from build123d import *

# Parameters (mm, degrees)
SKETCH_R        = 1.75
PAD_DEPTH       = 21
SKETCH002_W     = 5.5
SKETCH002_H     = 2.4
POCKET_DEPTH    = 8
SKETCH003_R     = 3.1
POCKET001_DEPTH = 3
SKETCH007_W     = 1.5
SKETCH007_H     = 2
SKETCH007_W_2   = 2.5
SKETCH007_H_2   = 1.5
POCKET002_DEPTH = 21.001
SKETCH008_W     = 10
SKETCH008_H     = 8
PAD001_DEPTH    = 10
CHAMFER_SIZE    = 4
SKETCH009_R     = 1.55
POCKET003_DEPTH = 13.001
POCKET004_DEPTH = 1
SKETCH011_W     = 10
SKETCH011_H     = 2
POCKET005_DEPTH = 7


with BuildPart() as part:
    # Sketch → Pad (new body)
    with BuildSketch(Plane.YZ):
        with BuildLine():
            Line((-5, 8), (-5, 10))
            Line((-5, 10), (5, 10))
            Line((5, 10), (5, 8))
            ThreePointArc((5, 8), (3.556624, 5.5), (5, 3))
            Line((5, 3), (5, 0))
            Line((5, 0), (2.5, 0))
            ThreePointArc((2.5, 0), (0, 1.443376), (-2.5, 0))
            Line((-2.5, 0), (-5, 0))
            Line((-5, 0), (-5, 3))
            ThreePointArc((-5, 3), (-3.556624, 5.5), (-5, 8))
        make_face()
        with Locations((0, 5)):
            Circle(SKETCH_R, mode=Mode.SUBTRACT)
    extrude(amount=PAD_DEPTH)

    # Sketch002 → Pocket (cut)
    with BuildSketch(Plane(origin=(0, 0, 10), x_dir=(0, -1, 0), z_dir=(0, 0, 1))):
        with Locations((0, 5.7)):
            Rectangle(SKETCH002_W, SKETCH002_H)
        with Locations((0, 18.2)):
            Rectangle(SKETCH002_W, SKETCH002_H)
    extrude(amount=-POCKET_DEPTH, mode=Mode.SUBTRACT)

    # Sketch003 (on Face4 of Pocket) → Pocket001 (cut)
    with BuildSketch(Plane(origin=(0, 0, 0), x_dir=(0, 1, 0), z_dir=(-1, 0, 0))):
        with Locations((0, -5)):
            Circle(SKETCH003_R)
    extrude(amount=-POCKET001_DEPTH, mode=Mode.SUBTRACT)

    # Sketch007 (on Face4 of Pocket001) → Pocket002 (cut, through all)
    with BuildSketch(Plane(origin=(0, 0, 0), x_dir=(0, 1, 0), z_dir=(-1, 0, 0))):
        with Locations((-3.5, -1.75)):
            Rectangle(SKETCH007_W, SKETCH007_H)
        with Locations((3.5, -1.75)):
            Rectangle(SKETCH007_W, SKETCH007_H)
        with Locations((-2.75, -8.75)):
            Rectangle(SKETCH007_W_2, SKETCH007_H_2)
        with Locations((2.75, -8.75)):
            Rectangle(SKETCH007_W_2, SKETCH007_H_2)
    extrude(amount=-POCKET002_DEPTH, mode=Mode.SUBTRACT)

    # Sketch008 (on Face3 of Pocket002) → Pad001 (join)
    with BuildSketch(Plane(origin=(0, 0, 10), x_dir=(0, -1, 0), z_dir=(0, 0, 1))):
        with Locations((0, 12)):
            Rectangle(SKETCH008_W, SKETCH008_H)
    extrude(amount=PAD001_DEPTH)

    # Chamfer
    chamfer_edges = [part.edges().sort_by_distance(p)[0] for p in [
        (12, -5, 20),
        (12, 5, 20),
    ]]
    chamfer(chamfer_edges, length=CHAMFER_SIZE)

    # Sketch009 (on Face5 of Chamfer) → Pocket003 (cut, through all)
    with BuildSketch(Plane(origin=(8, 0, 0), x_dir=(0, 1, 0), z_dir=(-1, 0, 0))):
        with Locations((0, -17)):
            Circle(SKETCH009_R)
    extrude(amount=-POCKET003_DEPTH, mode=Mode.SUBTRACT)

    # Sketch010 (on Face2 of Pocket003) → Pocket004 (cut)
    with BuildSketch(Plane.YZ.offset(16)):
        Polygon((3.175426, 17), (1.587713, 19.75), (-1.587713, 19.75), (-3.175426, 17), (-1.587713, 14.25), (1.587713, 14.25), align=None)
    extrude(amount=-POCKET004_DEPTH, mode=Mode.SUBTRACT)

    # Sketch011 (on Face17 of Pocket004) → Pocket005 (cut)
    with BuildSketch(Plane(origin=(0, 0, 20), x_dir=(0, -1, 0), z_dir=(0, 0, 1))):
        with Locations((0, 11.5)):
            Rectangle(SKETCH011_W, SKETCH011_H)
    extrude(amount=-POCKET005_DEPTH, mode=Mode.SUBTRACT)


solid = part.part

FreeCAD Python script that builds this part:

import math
import FreeCAD as App
import Part
import Sketcher
from FreeCAD import Vector
Q = App.Units.Quantity


def edges_at(feature, points):
    """Names of the edges that pass closest to the given points."""
    edges = feature.Shape.Edges
    near = lambda p: min(range(len(edges)), key=lambda i: edges[i].distToShape(Part.Vertex(*p))[0])
    return sorted({f"Edge{near(p) + 1}" for p in points})

doc = App.newDocument("Part")
body = doc.addObject("PartDesign::Body", "Body")

# Sketch on YZ plane
sketch1 = body.newObject("Sketcher::SketchObject", "Sketch")
sketch1.AttachmentSupport = (doc.getObject("YZ_Plane"), [""])
sketch1.MapMode = "FlatFace"
sketch1.addGeometry(Part.LineSegment(Vector(-5, 10, 0), Vector(-5, 8, 0)), False)
sketch1.addGeometry(Part.ArcOfCircle(Part.Circle(Vector(-6.4, 5.5, 0), Vector(0, 0, 1), 2.9), math.radians(-60), math.radians(60)), False)
sketch1.addGeometry(Part.LineSegment(Vector(-5, 3, 0), Vector(-5, 0, 0)), False)
sketch1.addGeometry(Part.LineSegment(Vector(-5, 0, 0), Vector(-2.5, 0, 0)), False)
sketch1.addGeometry(Part.ArcOfCircle(Part.Circle(Vector(0, -1.4, 0), Vector(0, 0, 1), 2.9), math.radians(30), math.radians(150)), False)
sketch1.addGeometry(Part.LineSegment(Vector(2.5, 0, 0), Vector(5, 0, 0)), False)
sketch1.addGeometry(Part.LineSegment(Vector(5, 0, 0), Vector(5, 3, 0)), False)
sketch1.addGeometry(Part.ArcOfCircle(Part.Circle(Vector(6.4, 5.5, 0), Vector(0, 0, 1), 2.9), math.radians(120), math.radians(240)), False)
sketch1.addGeometry(Part.LineSegment(Vector(5, 8, 0), Vector(5, 10, 0)), False)
sketch1.addGeometry(Part.LineSegment(Vector(5, 10, 0), Vector(-5, 10, 0)), False)
sketch1.addGeometry(Part.Circle(Vector(0, 5, 0), Vector(0, 0, 1), 1.8), False)
sketch1.addConstraint(Sketcher.Constraint("Coincident", 0, 2, 1, 2))
sketch1.addConstraint(Sketcher.Constraint("Coincident", 1, 1, 2, 1))
sketch1.addConstraint(Sketcher.Constraint("Coincident", 2, 2, 3, 1))
sketch1.addConstraint(Sketcher.Constraint("Coincident", 3, 2, 4, 2))
sketch1.addConstraint(Sketcher.Constraint("Coincident", 4, 1, 5, 1))
sketch1.addConstraint(Sketcher.Constraint("Coincident", 5, 2, 6, 1))
sketch1.addConstraint(Sketcher.Constraint("Coincident", 6, 2, 7, 2))
sketch1.addConstraint(Sketcher.Constraint("Coincident", 7, 1, 8, 1))
sketch1.addConstraint(Sketcher.Constraint("Coincident", 8, 2, 9, 1))
sketch1.addConstraint(Sketcher.Constraint("Coincident", 9, 2, 0, 1))
sketch1.addConstraint(Sketcher.Constraint("Vertical", 0))
sketch1.addConstraint(Sketcher.Constraint("Vertical", 2))
sketch1.addConstraint(Sketcher.Constraint("Horizontal", 3))
sketch1.addConstraint(Sketcher.Constraint("Horizontal", 5))
sketch1.addConstraint(Sketcher.Constraint("Vertical", 6))
sketch1.addConstraint(Sketcher.Constraint("Vertical", 8))
sketch1.addConstraint(Sketcher.Constraint("Horizontal", 9))
sketch1.addConstraint(Sketcher.Constraint("Equal", 1, 4))
sketch1.addConstraint(Sketcher.Constraint("Equal", 4, 7))
sketch1.addConstraint(Sketcher.Constraint("Symmetric", 3, 2, 4, 1, -1, 1))
sketch1.addConstraint(Sketcher.Constraint("Symmetric", 1, 3, 7, 3, -2))
sketch1.addConstraint(Sketcher.Constraint("Symmetric", 2, 2, 5, 2, -2))
sketch1.addConstraint(Sketcher.Constraint("PointOnObject", 10, 3, -2))
sketch1.addConstraint(Sketcher.Constraint("Horizontal", 0, 2, 7, 1))
sketch1.addConstraint(Sketcher.Constraint("Vertical", 0, 2, 1, 1))
sketch1.addConstraint(Sketcher.Constraint("Diameter", 10, Q("3.5 mm")))
sketch1.addConstraint(Sketcher.Constraint("DistanceX", 9, 2, 9, 1, Q("10 mm")))
sketch1.addConstraint(Sketcher.Constraint("DistanceY", 0, 2, 0, 1, Q("2 mm")))
sketch1.addConstraint(Sketcher.Constraint("DistanceY", 2, 2, 2, 1, Q("3 mm")))
sketch1.addConstraint(Sketcher.Constraint("DistanceX", 3, 1, 3, 2, Q("2.5 mm")))
sketch1.addConstraint(Sketcher.Constraint("DistanceY", -1, 1, 10, 3, Q("5 mm")))
sketch1.addConstraint(Sketcher.Constraint("DistanceY", -1, 1, 0, 2, Q("8 mm")))
sketch1.addConstraint(Sketcher.Constraint("Radius", 1, Q("2.886751 mm")))
pad1 = body.newObject("PartDesign::Pad", "Pad")
pad1.Profile = sketch1
pad1.Length = 21

# Sketch on XY plane
sketch2 = body.newObject("Sketcher::SketchObject", "Sketch001")
sketch2.AttachmentSupport = (doc.getObject("XY_Plane"), [""])
sketch2.MapMode = "FlatFace"
sketch2.AttachmentOffset = App.Placement(Vector(0, 0, 10), App.Rotation())
sketch2.addGeometry(Part.LineSegment(Vector(6.9, 2.8, 0), Vector(4.5, 2.8, 0)), False)
sketch2.addGeometry(Part.LineSegment(Vector(4.5, 2.8, 0), Vector(4.5, -2.8, 0)), False)
sketch2.addGeometry(Part.LineSegment(Vector(4.5, -2.8, 0), Vector(6.9, -2.8, 0)), False)
sketch2.addGeometry(Part.LineSegment(Vector(6.9, -2.8, 0), Vector(6.9, 2.8, 0)), False)
sketch2.addGeometry(Part.LineSegment(Vector(19.4, 2.8, 0), Vector(17, 2.8, 0)), False)
sketch2.addGeometry(Part.LineSegment(Vector(17, 2.8, 0), Vector(17, -2.8, 0)), False)
sketch2.addGeometry(Part.LineSegment(Vector(17, -2.8, 0), Vector(19.4, -2.8, 0)), False)
sketch2.addGeometry(Part.LineSegment(Vector(19.4, -2.8, 0), Vector(19.4, 2.8, 0)), False)
sketch2.addConstraint(Sketcher.Constraint("Coincident", 0, 2, 1, 1))
sketch2.addConstraint(Sketcher.Constraint("Coincident", 1, 2, 2, 1))
sketch2.addConstraint(Sketcher.Constraint("Coincident", 2, 2, 3, 1))
sketch2.addConstraint(Sketcher.Constraint("Coincident", 3, 2, 0, 1))
sketch2.addConstraint(Sketcher.Constraint("Coincident", 4, 2, 5, 1))
sketch2.addConstraint(Sketcher.Constraint("Coincident", 5, 2, 6, 1))
sketch2.addConstraint(Sketcher.Constraint("Coincident", 6, 2, 7, 1))
sketch2.addConstraint(Sketcher.Constraint("Coincident", 7, 2, 4, 1))
sketch2.addConstraint(Sketcher.Constraint("Horizontal", 0))
sketch2.addConstraint(Sketcher.Constraint("Vertical", 1))
sketch2.addConstraint(Sketcher.Constraint("Horizontal", 2))
sketch2.addConstraint(Sketcher.Constraint("Vertical", 3))
sketch2.addConstraint(Sketcher.Constraint("Horizontal", 4))
sketch2.addConstraint(Sketcher.Constraint("Vertical", 5))
sketch2.addConstraint(Sketcher.Constraint("Horizontal", 6))
sketch2.addConstraint(Sketcher.Constraint("Vertical", 7))
sketch2.addConstraint(Sketcher.Constraint("Horizontal", 3, 2, 4, 2))
sketch2.addConstraint(Sketcher.Constraint("Horizontal", 2, 2, 5, 2))
sketch2.addConstraint(Sketcher.Constraint("Equal", 2, 4))
sketch2.addConstraint(Sketcher.Constraint("DistanceX", 0, 2, 0, 1, Q("2.4 mm")))
sketch2.addConstraint(Sketcher.Constraint("DistanceY", 1, 2, 1, 1, Q("5.5 mm")))
sketch2.addConstraint(Sketcher.Constraint("DistanceX", -1, 1, 4, 2, Q("17 mm")))
sketch2.addConstraint(Sketcher.Constraint("DistanceX", -1, 1, 0, 2, Q("4.5 mm")))
sketch2.addConstraint(Sketcher.Constraint("DistanceY", -1, 1, 0, 2, Q("2.75 mm")))
pocket1 = body.newObject("PartDesign::Pocket", "Pocket")
pocket1.Profile = sketch2
pocket1.Length = 8

# Sketch on YZ plane
sketch3 = body.newObject("Sketcher::SketchObject", "Sketch002")
sketch3.AttachmentSupport = (doc.getObject("YZ_Plane"), [""])
sketch3.MapMode = "FlatFace"
sketch3.addGeometry(Part.Circle(Vector(0, 5, 0), Vector(0, 0, 1), 3.1), False)
sketch3.addConstraint(Sketcher.Constraint("PointOnObject", 0, 3, -2))
sketch3.addConstraint(Sketcher.Constraint("Diameter", 0, Q("6.2 mm")))
sketch3.addConstraint(Sketcher.Constraint("DistanceY", -1, 1, 0, 3, Q("5 mm")))
pocket2 = body.newObject("PartDesign::Pocket", "Pocket001")
pocket2.Profile = sketch3
pocket2.Length = 3
pocket2.Reversed = True

# Sketch on YZ plane
sketch4 = body.newObject("Sketcher::SketchObject", "Sketch003")
sketch4.AttachmentSupport = (doc.getObject("YZ_Plane"), [""])
sketch4.MapMode = "FlatFace"
sketch4.addGeometry(Part.LineSegment(Vector(-4.2, 0.8, 0), Vector(-4.2, 2.8, 0)), False)
sketch4.addGeometry(Part.LineSegment(Vector(-4.2, 2.8, 0), Vector(-2.8, 2.8, 0)), False)
sketch4.addGeometry(Part.LineSegment(Vector(-2.8, 2.8, 0), Vector(-2.8, 0.8, 0)), False)
sketch4.addGeometry(Part.LineSegment(Vector(-2.8, 0.8, 0), Vector(-4.2, 0.8, 0)), False)
sketch4.addGeometry(Part.LineSegment(Vector(2.8, 0.8, 0), Vector(2.8, 2.8, 0)), False)
sketch4.addGeometry(Part.LineSegment(Vector(2.8, 2.8, 0), Vector(4.2, 2.8, 0)), False)
sketch4.addGeometry(Part.LineSegment(Vector(4.2, 2.8, 0), Vector(4.2, 0.8, 0)), False)
sketch4.addGeometry(Part.LineSegment(Vector(4.2, 0.8, 0), Vector(2.8, 0.8, 0)), False)
sketch4.addGeometry(Part.LineSegment(Vector(-4, 8, 0), Vector(-4, 9.5, 0)), False)
sketch4.addGeometry(Part.LineSegment(Vector(-4, 9.5, 0), Vector(-1.5, 9.5, 0)), False)
sketch4.addGeometry(Part.LineSegment(Vector(-1.5, 9.5, 0), Vector(-1.5, 8, 0)), False)
sketch4.addGeometry(Part.LineSegment(Vector(-1.5, 8, 0), Vector(-4, 8, 0)), False)
sketch4.addGeometry(Part.LineSegment(Vector(1.5, 8, 0), Vector(1.5, 9.5, 0)), False)
sketch4.addGeometry(Part.LineSegment(Vector(1.5, 9.5, 0), Vector(4, 9.5, 0)), False)
sketch4.addGeometry(Part.LineSegment(Vector(4, 9.5, 0), Vector(4, 8, 0)), False)
sketch4.addGeometry(Part.LineSegment(Vector(4, 8, 0), Vector(1.5, 8, 0)), False)
sketch4.addConstraint(Sketcher.Constraint("Coincident", 0, 2, 1, 1))
sketch4.addConstraint(Sketcher.Constraint("Coincident", 1, 2, 2, 1))
sketch4.addConstraint(Sketcher.Constraint("Coincident", 2, 2, 3, 1))
sketch4.addConstraint(Sketcher.Constraint("Coincident", 3, 2, 0, 1))
sketch4.addConstraint(Sketcher.Constraint("Coincident", 4, 2, 5, 1))
sketch4.addConstraint(Sketcher.Constraint("Coincident", 5, 2, 6, 1))
sketch4.addConstraint(Sketcher.Constraint("Coincident", 6, 2, 7, 1))
sketch4.addConstraint(Sketcher.Constraint("Coincident", 7, 2, 4, 1))
sketch4.addConstraint(Sketcher.Constraint("Coincident", 8, 2, 9, 1))
sketch4.addConstraint(Sketcher.Constraint("Coincident", 9, 2, 10, 1))
sketch4.addConstraint(Sketcher.Constraint("Coincident", 10, 2, 11, 1))
sketch4.addConstraint(Sketcher.Constraint("Coincident", 11, 2, 8, 1))
sketch4.addConstraint(Sketcher.Constraint("Coincident", 12, 2, 13, 1))
sketch4.addConstraint(Sketcher.Constraint("Coincident", 13, 2, 14, 1))
sketch4.addConstraint(Sketcher.Constraint("Coincident", 14, 2, 15, 1))
sketch4.addConstraint(Sketcher.Constraint("Coincident", 15, 2, 12, 1))
sketch4.addConstraint(Sketcher.Constraint("Vertical", 0))
sketch4.addConstraint(Sketcher.Constraint("Horizontal", 1))
sketch4.addConstraint(Sketcher.Constraint("Vertical", 2))
sketch4.addConstraint(Sketcher.Constraint("Horizontal", 3))
sketch4.addConstraint(Sketcher.Constraint("Vertical", 4))
sketch4.addConstraint(Sketcher.Constraint("Horizontal", 5))
sketch4.addConstraint(Sketcher.Constraint("Vertical", 6))
sketch4.addConstraint(Sketcher.Constraint("Horizontal", 7))
sketch4.addConstraint(Sketcher.Constraint("Vertical", 8))
sketch4.addConstraint(Sketcher.Constraint("Horizontal", 9))
sketch4.addConstraint(Sketcher.Constraint("Vertical", 10))
sketch4.addConstraint(Sketcher.Constraint("Horizontal", 11))
sketch4.addConstraint(Sketcher.Constraint("Vertical", 12))
sketch4.addConstraint(Sketcher.Constraint("Horizontal", 13))
sketch4.addConstraint(Sketcher.Constraint("Vertical", 14))
sketch4.addConstraint(Sketcher.Constraint("Horizontal", 15))
sketch4.addConstraint(Sketcher.Constraint("Symmetric", 1, 2, 4, 2, -2))
sketch4.addConstraint(Sketcher.Constraint("Symmetric", 3, 2, 6, 2, -2))
sketch4.addConstraint(Sketcher.Constraint("Symmetric", 9, 2, 12, 2, -2))
sketch4.addConstraint(Sketcher.Constraint("Symmetric", 11, 2, 14, 2, -2))
sketch4.addConstraint(Sketcher.Constraint("Equal", 7, 8))
sketch4.addConstraint(Sketcher.Constraint("DistanceY", 0, 1, 0, 2, Q("2 mm")))
sketch4.addConstraint(Sketcher.Constraint("DistanceX", 1, 1, 1, 2, Q("1.5 mm")))
sketch4.addConstraint(Sketcher.Constraint("DistanceX", 9, 1, 9, 2, Q("2.5 mm")))
sketch4.addConstraint(Sketcher.Constraint("DistanceX", 8, 2, -1, 1, Q("4 mm")))
sketch4.addConstraint(Sketcher.Constraint("DistanceY", -1, 1, 10, 2, Q("8 mm")))
sketch4.addConstraint(Sketcher.Constraint("DistanceX", 0, 2, 4, 2, Q("7 mm")))
sketch4.addConstraint(Sketcher.Constraint("DistanceY", -1, 1, 0, 2, Q("2.75 mm")))
pocket3 = body.newObject("PartDesign::Pocket", "Pocket002")
pocket3.Profile = sketch4
pocket3.Type = "ThroughAll"
pocket3.Reversed = True

# Sketch on XY plane
sketch5 = body.newObject("Sketcher::SketchObject", "Sketch004")
sketch5.AttachmentSupport = (doc.getObject("XY_Plane"), [""])
sketch5.MapMode = "FlatFace"
sketch5.AttachmentOffset = App.Placement(Vector(0, 0, 10), App.Rotation())
sketch5.addGeometry(Part.LineSegment(Vector(16, 5, 0), Vector(8, 5, 0)), False)
sketch5.addGeometry(Part.LineSegment(Vector(8, 5, 0), Vector(8, -5, 0)), False)
sketch5.addGeometry(Part.LineSegment(Vector(8, -5, 0), Vector(16, -5, 0)), False)
sketch5.addGeometry(Part.LineSegment(Vector(16, -5, 0), Vector(16, 5, 0)), False)
sketch5.addConstraint(Sketcher.Constraint("Coincident", 0, 2, 1, 1))
sketch5.addConstraint(Sketcher.Constraint("Coincident", 1, 2, 2, 1))
sketch5.addConstraint(Sketcher.Constraint("Coincident", 2, 2, 3, 1))
sketch5.addConstraint(Sketcher.Constraint("Coincident", 3, 2, 0, 1))
sketch5.addConstraint(Sketcher.Constraint("Horizontal", 0))
sketch5.addConstraint(Sketcher.Constraint("Vertical", 1))
sketch5.addConstraint(Sketcher.Constraint("Horizontal", 2))
sketch5.addConstraint(Sketcher.Constraint("Vertical", 3))
sketch5.addConstraint(Sketcher.Constraint("DistanceX", 0, 2, 0, 1, Q("8 mm")))
sketch5.addConstraint(Sketcher.Constraint("DistanceY", 1, 2, 1, 1, Q("10 mm")))
sketch5.addConstraint(Sketcher.Constraint("DistanceX", -1, 1, 0, 2, Q("8 mm")))
sketch5.addConstraint(Sketcher.Constraint("DistanceY", -1, 1, 0, 2, Q("5 mm")))
pad2 = body.newObject("PartDesign::Pad", "Pad001")
pad2.Profile = sketch5
pad2.Length = 10
doc.recompute()

chamfer = body.newObject("PartDesign::Chamfer", "Chamfer")
chamfer.Base = (pad2, edges_at(pad2, [(12, -5, 20), (12, 5, 20)]))
chamfer.Size = 4

# Sketch on YZ plane
sketch6 = body.newObject("Sketcher::SketchObject", "Sketch005")
sketch6.AttachmentSupport = (doc.getObject("YZ_Plane"), [""])
sketch6.MapMode = "FlatFace"
sketch6.AttachmentOffset = App.Placement(Vector(0, 0, 8), App.Rotation())
sketch6.addGeometry(Part.Circle(Vector(0, 17, 0), Vector(0, 0, 1), 1.6), False)
sketch6.addConstraint(Sketcher.Constraint("PointOnObject", 0, 3, -2))
sketch6.addConstraint(Sketcher.Constraint("Diameter", 0, Q("3.1 mm")))
sketch6.addConstraint(Sketcher.Constraint("DistanceY", -1, 1, 0, 3, Q("17 mm")))
pocket4 = body.newObject("PartDesign::Pocket", "Pocket003")
pocket4.Profile = sketch6
pocket4.Type = "ThroughAll"
pocket4.Reversed = True

# Sketch on YZ plane
sketch7 = body.newObject("Sketcher::SketchObject", "Sketch006")
sketch7.AttachmentSupport = (doc.getObject("YZ_Plane"), [""])
sketch7.MapMode = "FlatFace"
sketch7.AttachmentOffset = App.Placement(Vector(0, 0, 16), App.Rotation())
sketch7.addGeometry(Part.LineSegment(Vector(3.2, 17, 0), Vector(1.6, 19.8, 0)), False)
sketch7.addGeometry(Part.LineSegment(Vector(1.6, 19.8, 0), Vector(-1.6, 19.8, 0)), False)
sketch7.addGeometry(Part.LineSegment(Vector(-1.6, 19.8, 0), Vector(-3.2, 17, 0)), False)
sketch7.addGeometry(Part.LineSegment(Vector(-3.2, 17, 0), Vector(-1.6, 14.2, 0)), False)
sketch7.addGeometry(Part.LineSegment(Vector(-1.6, 14.2, 0), Vector(1.6, 14.2, 0)), False)
sketch7.addGeometry(Part.LineSegment(Vector(1.6, 14.2, 0), Vector(3.2, 17, 0)), False)
sketch7.addConstraint(Sketcher.Constraint("Coincident", 0, 2, 1, 1))
sketch7.addConstraint(Sketcher.Constraint("Coincident", 1, 2, 2, 1))
sketch7.addConstraint(Sketcher.Constraint("Coincident", 2, 2, 3, 1))
sketch7.addConstraint(Sketcher.Constraint("Coincident", 3, 2, 4, 1))
sketch7.addConstraint(Sketcher.Constraint("Coincident", 4, 2, 5, 1))
sketch7.addConstraint(Sketcher.Constraint("Coincident", 5, 2, 0, 1))
sketch7.addConstraint(Sketcher.Constraint("Horizontal", 1))
sketch7.addConstraint(Sketcher.Constraint("Horizontal", 4))
sketch7.addConstraint(Sketcher.Constraint("Symmetric", 2, 2, 5, 2, -2))
sketch7.addConstraint(Sketcher.Constraint("Parallel", 0, 3))
sketch7.addConstraint(Sketcher.Constraint("Parallel", 2, 5))
sketch7.addConstraint(Sketcher.Constraint("Vertical", 1, 2, 3, 2))
sketch7.addConstraint(Sketcher.Constraint("Vertical", 0, 2, 4, 2))
sketch7.addConstraint(Sketcher.Constraint("Angle", 0, Q("119.999996 deg")))
sketch7.addConstraint(Sketcher.Constraint("DistanceY", -1, 1, 2, 2, Q("17 mm")))
sketch7.addConstraint(Sketcher.Constraint("DistanceY", 3, 2, 1, 2, Q("5.5 mm")))
sketch7.addConstraint(Sketcher.Constraint("DistanceX", 1, 2, 1, 1, Q("3.175426 mm")))
pocket5 = body.newObject("PartDesign::Pocket", "Pocket004")
pocket5.Profile = sketch7
pocket5.Length = 1

# Sketch on XY plane
sketch8 = body.newObject("Sketcher::SketchObject", "Sketch007")
sketch8.AttachmentSupport = (doc.getObject("XY_Plane"), [""])
sketch8.MapMode = "FlatFace"
sketch8.AttachmentOffset = App.Placement(Vector(0, 0, 20), App.Rotation())
sketch8.addGeometry(Part.LineSegment(Vector(12.5, 5, 0), Vector(10.5, 5, 0)), False)
sketch8.addGeometry(Part.LineSegment(Vector(10.5, 5, 0), Vector(10.5, -5, 0)), False)
sketch8.addGeometry(Part.LineSegment(Vector(10.5, -5, 0), Vector(12.5, -5, 0)), False)
sketch8.addGeometry(Part.LineSegment(Vector(12.5, -5, 0), Vector(12.5, 5, 0)), False)
sketch8.addConstraint(Sketcher.Constraint("Coincident", 0, 2, 1, 1))
sketch8.addConstraint(Sketcher.Constraint("Coincident", 1, 2, 2, 1))
sketch8.addConstraint(Sketcher.Constraint("Coincident", 2, 2, 3, 1))
sketch8.addConstraint(Sketcher.Constraint("Coincident", 3, 2, 0, 1))
sketch8.addConstraint(Sketcher.Constraint("Horizontal", 0))
sketch8.addConstraint(Sketcher.Constraint("Vertical", 1))
sketch8.addConstraint(Sketcher.Constraint("Horizontal", 2))
sketch8.addConstraint(Sketcher.Constraint("Vertical", 3))
sketch8.addConstraint(Sketcher.Constraint("DistanceX", 0, 2, 0, 1, Q("2 mm")))
sketch8.addConstraint(Sketcher.Constraint("DistanceY", 1, 2, 1, 1, Q("10 mm")))
sketch8.addConstraint(Sketcher.Constraint("DistanceY", -1, 1, 0, 2, Q("5 mm")))
sketch8.addConstraint(Sketcher.Constraint("DistanceX", -1, 1, 0, 2, Q("10.5 mm")))
pocket6 = body.newObject("PartDesign::Pocket", "Pocket005")
pocket6.Profile = sketch8
pocket6.Length = 7

doc.recompute()
